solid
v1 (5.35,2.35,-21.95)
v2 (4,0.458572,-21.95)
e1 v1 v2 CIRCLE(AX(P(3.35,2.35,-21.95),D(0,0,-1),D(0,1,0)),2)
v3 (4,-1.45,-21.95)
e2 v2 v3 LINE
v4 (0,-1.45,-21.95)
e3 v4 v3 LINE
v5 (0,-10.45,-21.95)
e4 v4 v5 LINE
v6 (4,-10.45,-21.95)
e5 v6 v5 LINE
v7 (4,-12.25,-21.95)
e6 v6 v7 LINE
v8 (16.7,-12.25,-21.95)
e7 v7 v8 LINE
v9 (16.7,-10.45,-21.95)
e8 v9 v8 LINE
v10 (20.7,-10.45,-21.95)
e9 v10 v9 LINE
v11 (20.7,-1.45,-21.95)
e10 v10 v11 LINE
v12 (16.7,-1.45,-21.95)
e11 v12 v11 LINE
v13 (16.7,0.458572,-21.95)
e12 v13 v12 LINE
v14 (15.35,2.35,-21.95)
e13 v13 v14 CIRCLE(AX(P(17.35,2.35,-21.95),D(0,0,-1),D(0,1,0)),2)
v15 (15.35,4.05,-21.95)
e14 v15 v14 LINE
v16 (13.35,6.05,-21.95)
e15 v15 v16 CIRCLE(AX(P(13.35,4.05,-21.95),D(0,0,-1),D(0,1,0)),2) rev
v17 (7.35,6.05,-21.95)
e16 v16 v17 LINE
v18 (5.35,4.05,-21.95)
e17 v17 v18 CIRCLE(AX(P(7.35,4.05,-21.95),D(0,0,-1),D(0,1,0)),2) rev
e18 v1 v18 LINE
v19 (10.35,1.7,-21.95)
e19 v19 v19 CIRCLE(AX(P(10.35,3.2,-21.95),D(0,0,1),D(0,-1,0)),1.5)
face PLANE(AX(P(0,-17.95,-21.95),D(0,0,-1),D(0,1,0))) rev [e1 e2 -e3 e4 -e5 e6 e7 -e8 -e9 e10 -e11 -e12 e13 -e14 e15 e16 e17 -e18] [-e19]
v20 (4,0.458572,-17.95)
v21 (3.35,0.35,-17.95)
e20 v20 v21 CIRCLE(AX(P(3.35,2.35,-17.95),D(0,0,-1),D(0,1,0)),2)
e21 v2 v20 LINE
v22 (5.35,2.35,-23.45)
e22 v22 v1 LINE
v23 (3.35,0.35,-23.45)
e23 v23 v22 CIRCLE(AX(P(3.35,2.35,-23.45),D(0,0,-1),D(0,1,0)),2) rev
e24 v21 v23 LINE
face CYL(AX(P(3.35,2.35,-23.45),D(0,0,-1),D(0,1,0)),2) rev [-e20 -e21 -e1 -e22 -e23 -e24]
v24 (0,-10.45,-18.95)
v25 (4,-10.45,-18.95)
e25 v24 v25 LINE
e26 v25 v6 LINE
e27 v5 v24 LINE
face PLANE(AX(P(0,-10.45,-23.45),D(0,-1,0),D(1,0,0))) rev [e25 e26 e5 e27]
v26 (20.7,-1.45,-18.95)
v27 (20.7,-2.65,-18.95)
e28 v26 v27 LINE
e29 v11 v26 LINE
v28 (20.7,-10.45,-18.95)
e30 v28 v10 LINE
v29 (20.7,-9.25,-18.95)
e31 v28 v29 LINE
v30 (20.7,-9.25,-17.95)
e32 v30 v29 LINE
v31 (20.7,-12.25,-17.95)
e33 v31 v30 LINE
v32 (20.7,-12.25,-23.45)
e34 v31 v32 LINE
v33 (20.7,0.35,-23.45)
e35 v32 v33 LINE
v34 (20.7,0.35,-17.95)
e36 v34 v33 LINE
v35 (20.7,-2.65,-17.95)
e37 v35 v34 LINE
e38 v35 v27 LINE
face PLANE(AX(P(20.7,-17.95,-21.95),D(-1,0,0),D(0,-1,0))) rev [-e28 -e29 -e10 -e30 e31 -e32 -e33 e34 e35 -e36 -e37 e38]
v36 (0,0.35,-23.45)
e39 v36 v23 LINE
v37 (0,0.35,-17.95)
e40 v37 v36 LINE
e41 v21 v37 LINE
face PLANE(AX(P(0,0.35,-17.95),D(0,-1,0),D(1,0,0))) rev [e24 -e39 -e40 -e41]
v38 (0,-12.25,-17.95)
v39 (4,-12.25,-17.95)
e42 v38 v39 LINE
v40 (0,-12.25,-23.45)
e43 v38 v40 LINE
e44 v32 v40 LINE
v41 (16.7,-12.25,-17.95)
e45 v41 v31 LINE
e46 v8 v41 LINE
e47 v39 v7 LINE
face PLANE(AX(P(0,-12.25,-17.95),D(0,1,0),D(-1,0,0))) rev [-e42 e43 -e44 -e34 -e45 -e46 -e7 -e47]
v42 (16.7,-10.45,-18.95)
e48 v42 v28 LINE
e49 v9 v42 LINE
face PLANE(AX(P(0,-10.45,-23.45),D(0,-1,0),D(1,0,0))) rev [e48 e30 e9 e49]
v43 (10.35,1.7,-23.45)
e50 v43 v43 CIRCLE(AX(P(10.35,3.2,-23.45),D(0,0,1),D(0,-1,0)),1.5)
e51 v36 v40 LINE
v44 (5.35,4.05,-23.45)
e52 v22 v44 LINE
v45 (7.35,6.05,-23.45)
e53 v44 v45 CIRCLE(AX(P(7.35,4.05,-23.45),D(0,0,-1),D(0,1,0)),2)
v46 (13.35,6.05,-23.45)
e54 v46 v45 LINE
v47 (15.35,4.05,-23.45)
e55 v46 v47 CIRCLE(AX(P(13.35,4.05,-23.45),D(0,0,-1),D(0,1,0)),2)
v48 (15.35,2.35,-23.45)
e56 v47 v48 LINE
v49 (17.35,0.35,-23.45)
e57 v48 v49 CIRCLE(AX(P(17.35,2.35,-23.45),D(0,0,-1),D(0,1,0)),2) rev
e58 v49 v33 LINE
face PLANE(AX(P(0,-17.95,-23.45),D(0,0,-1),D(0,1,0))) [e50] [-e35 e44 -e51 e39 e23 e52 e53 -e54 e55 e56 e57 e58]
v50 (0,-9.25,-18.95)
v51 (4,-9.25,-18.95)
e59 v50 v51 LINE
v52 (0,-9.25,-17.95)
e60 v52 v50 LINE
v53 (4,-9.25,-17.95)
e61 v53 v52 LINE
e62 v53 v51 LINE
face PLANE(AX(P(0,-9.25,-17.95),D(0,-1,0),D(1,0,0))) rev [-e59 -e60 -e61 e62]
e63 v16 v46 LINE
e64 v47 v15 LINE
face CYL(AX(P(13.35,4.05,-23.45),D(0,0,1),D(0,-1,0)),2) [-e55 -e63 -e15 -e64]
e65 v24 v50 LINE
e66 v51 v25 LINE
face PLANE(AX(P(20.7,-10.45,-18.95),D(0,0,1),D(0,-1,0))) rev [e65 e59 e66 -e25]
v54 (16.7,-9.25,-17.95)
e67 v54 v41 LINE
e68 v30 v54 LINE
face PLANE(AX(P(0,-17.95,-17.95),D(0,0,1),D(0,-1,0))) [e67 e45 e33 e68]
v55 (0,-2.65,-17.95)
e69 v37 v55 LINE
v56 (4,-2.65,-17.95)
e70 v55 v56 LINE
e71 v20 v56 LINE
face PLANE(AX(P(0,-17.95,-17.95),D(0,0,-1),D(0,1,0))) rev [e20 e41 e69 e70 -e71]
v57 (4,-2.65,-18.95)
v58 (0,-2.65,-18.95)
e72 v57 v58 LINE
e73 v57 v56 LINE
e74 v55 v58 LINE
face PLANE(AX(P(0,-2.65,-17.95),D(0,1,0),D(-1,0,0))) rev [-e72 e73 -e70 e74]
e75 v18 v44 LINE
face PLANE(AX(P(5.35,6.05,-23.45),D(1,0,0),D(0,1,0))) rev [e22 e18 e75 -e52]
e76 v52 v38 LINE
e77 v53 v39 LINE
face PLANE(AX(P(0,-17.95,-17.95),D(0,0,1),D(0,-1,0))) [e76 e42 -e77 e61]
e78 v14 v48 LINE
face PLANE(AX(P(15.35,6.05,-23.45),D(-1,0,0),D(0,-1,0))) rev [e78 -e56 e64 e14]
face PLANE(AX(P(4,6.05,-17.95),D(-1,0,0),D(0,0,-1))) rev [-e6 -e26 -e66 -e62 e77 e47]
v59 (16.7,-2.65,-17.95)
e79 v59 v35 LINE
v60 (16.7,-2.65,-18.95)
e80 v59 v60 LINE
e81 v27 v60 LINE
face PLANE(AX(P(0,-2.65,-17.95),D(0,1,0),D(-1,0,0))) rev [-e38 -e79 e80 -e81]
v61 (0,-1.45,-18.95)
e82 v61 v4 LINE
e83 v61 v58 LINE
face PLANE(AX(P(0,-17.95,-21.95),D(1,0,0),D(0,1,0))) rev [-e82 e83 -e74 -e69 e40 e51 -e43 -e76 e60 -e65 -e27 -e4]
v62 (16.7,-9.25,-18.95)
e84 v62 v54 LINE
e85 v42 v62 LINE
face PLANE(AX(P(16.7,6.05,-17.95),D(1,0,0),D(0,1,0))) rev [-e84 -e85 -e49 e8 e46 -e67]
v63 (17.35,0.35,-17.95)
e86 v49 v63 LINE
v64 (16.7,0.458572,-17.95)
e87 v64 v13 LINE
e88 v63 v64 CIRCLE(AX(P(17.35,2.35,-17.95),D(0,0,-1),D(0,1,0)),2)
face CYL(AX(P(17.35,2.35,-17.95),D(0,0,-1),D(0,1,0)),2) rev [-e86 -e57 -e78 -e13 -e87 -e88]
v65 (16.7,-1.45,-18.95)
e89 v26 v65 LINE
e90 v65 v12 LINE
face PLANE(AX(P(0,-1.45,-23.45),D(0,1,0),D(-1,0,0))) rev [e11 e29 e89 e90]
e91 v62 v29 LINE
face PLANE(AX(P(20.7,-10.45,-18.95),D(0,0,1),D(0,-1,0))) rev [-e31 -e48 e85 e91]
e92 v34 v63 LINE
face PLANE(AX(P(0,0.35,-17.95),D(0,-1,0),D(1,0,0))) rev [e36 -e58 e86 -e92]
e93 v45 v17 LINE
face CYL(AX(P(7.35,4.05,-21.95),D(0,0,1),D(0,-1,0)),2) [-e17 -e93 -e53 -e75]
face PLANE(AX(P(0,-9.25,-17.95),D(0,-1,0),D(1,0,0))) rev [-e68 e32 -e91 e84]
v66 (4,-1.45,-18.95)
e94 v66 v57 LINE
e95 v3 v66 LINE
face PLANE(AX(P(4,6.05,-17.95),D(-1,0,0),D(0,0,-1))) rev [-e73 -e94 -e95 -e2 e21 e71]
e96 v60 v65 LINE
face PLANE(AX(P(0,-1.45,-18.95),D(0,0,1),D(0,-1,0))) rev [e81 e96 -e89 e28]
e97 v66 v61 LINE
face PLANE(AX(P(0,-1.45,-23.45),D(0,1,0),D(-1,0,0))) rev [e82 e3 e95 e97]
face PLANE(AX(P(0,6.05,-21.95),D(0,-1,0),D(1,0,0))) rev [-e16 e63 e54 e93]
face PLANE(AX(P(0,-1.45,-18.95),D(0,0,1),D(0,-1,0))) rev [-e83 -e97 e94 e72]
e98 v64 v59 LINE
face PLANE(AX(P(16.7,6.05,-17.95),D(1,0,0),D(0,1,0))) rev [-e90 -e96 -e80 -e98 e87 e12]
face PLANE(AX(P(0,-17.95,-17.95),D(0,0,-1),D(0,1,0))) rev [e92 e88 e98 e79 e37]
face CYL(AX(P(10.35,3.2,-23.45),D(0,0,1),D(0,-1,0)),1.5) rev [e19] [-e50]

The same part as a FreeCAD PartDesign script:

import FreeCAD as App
import Part
import Sketcher

V = App.Vector


def edges_at(feature, points):
    """Names of the edges that pass closest to the given points."""
    edges = feature.Shape.Edges
    near = lambda p: min(range(len(edges)), key=lambda i: edges[i].distToShape(Part.Vertex(*p))[0])
    return sorted({f"Edge{near(p) + 1}" for p in points})

doc = App.newDocument("Part")
body = doc.addObject("PartDesign::Body", "Body")

sketch1 = doc.addObject("Sketcher::SketchObject", "Sketch")
body.addObject(sketch1)
sketch1.AttachmentSupport = (doc.XZ_Plane, [""])
sketch1.MapMode = "FlatFace"
sketch1.addGeometry([
    Part.LineSegment(V(0, -24, 0), V(0, 0, 0)),
    Part.LineSegment(V(0, 0, 0), V(21, 0, 0)),
    Part.LineSegment(V(21, 0, 0), V(21, -24, 0)),
    Part.LineSegment(V(21, -24, 0), V(0, -24, 0)),
], False)
sketch1.addConstraint([
    Sketcher.Constraint("Coincident", 0, 2, 1, 1),
    Sketcher.Constraint("Coincident", 1, 2, 2, 1),
    Sketcher.Constraint("Coincident", 2, 2, 3, 1),
    Sketcher.Constraint("Coincident", 3, 2, 0, 1),
    Sketcher.Constraint("Vertical", 0),
    Sketcher.Constraint("Horizontal", 1),
    Sketcher.Constraint("Vertical", 2),
    Sketcher.Constraint("Horizontal", 3),
    Sketcher.Constraint("Coincident", 0, 2, -1, 1),
    Sketcher.Constraint("DistanceY", 0, 1, 0, 2, 24.0),
    Sketcher.Constraint("DistanceX", 1, 1, 1, 2, 20.7),
])
pad1 = doc.addObject("PartDesign::Pad", "Pad")
body.addObject(pad1)
pad1.Profile = sketch1
pad1.Length = 1.5
pad1.Reversed = True

sketch2 = doc.addObject("Sketcher::SketchObject", "Sketch001")
body.addObject(sketch2)
sketch2.AttachmentSupport = (doc.XZ_Plane, [""])
sketch2.MapMode = "FlatFace"
sketch2.AttachmentOffset = App.Placement(V(0, 0, -1.5), App.Rotation())
sketch2.addGeometry([
    Part.LineSegment(V(0, -18.3, 0), V(0, -15.3, 0)),
    Part.LineSegment(V(0, -15.3, 0), V(20.7, -15.3, 0)),
    Part.LineSegment(V(20.7, -15.3, 0), V(20.7, -18.3, 0)),
    Part.LineSegment(V(20.7, -18.3, 0), V(0, -18.3, 0)),
    Part.LineSegment(V(0, -8.7, 0), V(0, -5.7, 0)),
    Part.LineSegment(V(0, -5.7, 0), V(20.7, -5.7, 0)),
    Part.LineSegment(V(20.7, -5.7, 0), V(20.7, -8.7, 0)),
    Part.LineSegment(V(20.7, -8.7, 0), V(0, -8.7, 0)),
], False)
sketch2.addConstraint([
    Sketcher.Constraint("Coincident", 0, 2, 1, 1),
    Sketcher.Constraint("Coincident", 1, 2, 2, 1),
    Sketcher.Constraint("Coincident", 2, 2, 3, 1),
    Sketcher.Constraint("Coincident", 3, 2, 0, 1),
    Sketcher.Constraint("Coincident", 4, 2, 5, 1),
    Sketcher.Constraint("Coincident", 5, 2, 6, 1),
    Sketcher.Constraint("Coincident", 6, 2, 7, 1),
    Sketcher.Constraint("Coincident", 7, 2, 4, 1),
    Sketcher.Constraint("Vertical", 0),
    Sketcher.Constraint("Horizontal", 1),
    Sketcher.Constraint("Vertical", 2),
    Sketcher.Constraint("Horizontal", 3),
    Sketcher.Constraint("Vertical", 4),
    Sketcher.Constraint("Horizontal", 5),
    Sketcher.Constraint("Vertical", 6),
    Sketcher.Constraint("Horizontal", 7),
    Sketcher.Constraint("PointOnObject", 0, 2, -2),
    Sketcher.Constraint("PointOnObject", 4, 2, -2),
    Sketcher.Constraint("Vertical", 2, 2, 5, 2),
    Sketcher.Constraint("Equal", 2, 4),
    Sketcher.Constraint("DistanceY", 0, 1, 0, 2, 3.0),
    Sketcher.Constraint("DistanceX", 1, 1, 1, 2, 20.7),
    Sketcher.Constraint("DistanceY", 0, 2, -1, 1, 15.3),
    Sketcher.Constraint("DistanceY", 4, 2, -1, 1, 5.7),
])
pad2 = doc.addObject("PartDesign::Pad", "Pad001")
body.addObject(pad2)
pad2.Profile = sketch2
pad2.Length = 4
pad2.Reversed = True

sketch3 = doc.addObject("Sketcher::SketchObject", "Sketch002")
body.addObject(sketch3)
sketch3.AttachmentSupport = (doc.XY_Plane, [""])
sketch3.MapMode = "FlatFace"
sketch3.AttachmentOffset = App.Placement(V(0, 0, -15.3), App.Rotation())
sketch3.addGeometry([
    Part.LineSegment(V(0, 4.5, 0), V(0, 1.5, 0)),
    Part.LineSegment(V(0, 1.5, 0), V(20.7, 1.5, 0)),
    Part.LineSegment(V(20.7, 1.5, 0), V(20.7, 4.5, 0)),
    Part.LineSegment(V(20.7, 4.5, 0), V(0, 4.5, 0)),
], False)
sketch3.addConstraint([
    Sketcher.Constraint("Coincident", 0, 2, 1, 1),
    Sketcher.Constraint("Coincident", 1, 2, 2, 1),
    Sketcher.Constraint("Coincident", 2, 2, 3, 1),
    Sketcher.Constraint("Coincident", 3, 2, 0, 1),
    Sketcher.Constraint("Vertical", 0),
    Sketcher.Constraint("Horizontal", 1),
    Sketcher.Constraint("Vertical", 2),
    Sketcher.Constraint("Horizontal", 3),
    Sketcher.Constraint("PointOnObject", 0, 2, -2),
    Sketcher.Constraint("DistanceY", 0, 2, 0, 1, 3.0),
    Sketcher.Constraint("DistanceX", 1, 1, 1, 2, 20.7),
    Sketcher.Constraint("DistanceY", -1, 1, 0, 2, 1.5),
])
pocket1 = doc.addObject("PartDesign::Pocket", "Pocket")
body.addObject(pocket1)
pocket1.Profile = sketch3
pocket1.Length = 1.2

sketch4 = doc.addObject("Sketcher::SketchObject", "Sketch003")
body.addObject(sketch4)
sketch4.AttachmentSupport = (doc.XY_Plane, [""])
sketch4.MapMode = "FlatFace"
sketch4.AttachmentOffset = App.Placement(V(0, 0, -8.7), App.Rotation())
sketch4.addGeometry([
    Part.LineSegment(V(20.7, 4.5, 0), V(20.7, 1.5, 0)),
    Part.LineSegment(V(20.7, 1.5, 0), V(0, 1.5, 0)),
    Part.LineSegment(V(0, 1.5, 0), V(0, 4.5, 0)),
    Part.LineSegment(V(0, 4.5, 0), V(20.7, 4.5, 0)),
], False)
sketch4.addConstraint([
    Sketcher.Constraint("Coincident", 0, 2, 1, 1),
    Sketcher.Constraint("Coincident", 1, 2, 2, 1),
    Sketcher.Constraint("Coincident", 2, 2, 3, 1),
    Sketcher.Constraint("Coincident", 3, 2, 0, 1),
    Sketcher.Constraint("Vertical", 0),
    Sketcher.Constraint("Horizontal", 1),
    Sketcher.Constraint("Vertical", 2),
    Sketcher.Constraint("Horizontal", 3),
    Sketcher.Constraint("PointOnObject", 1, 2, -2),
    Sketcher.Constraint("DistanceY", 0, 2, 0, 1, 3.0),
    Sketcher.Constraint("DistanceX", 1, 2, 1, 1, 20.7),
    Sketcher.Constraint("DistanceY", -1, 1, 0, 2, 1.5),
])
pocket2 = doc.addObject("PartDesign::Pocket", "Pocket001")
body.addObject(pocket2)
pocket2.Profile = sketch4
pocket2.Length = 1.2
pocket2.Reversed = True

sketch5 = doc.addObject("Sketcher::SketchObject", "Sketch004")
body.addObject(sketch5)
sketch5.AttachmentSupport = (doc.XZ_Plane, [""])
sketch5.MapMode = "FlatFace"
sketch5.AttachmentOffset = App.Placement(V(0, 0, -1.5), App.Rotation())
sketch5.addGeometry([
    Part.Circle(V(10.3, -21.1, 0), V(0, 0, 1), 1.5),
    Part.Circle(V(10.3, -2.9, 0), V(0, 0, 1), 1.5),
], False)
sketch5.addConstraint([
    Sketcher.Constraint("Equal", 0, 1),
    Sketcher.Constraint("Vertical", 0, 3, 1, 3),
    Sketcher.Constraint("Diameter", 0, 3.0),
    Sketcher.Constraint("DistanceY", 0, 3, 1, 3, 18.3),
    Sketcher.Constraint("DistanceX", -1, 1, 0, 3, 10.35),
    Sketcher.Constraint("DistanceY", 0, 3, -1, 1, 21.15),
])
pocket3 = doc.addObject("PartDesign::Pocket", "Pocket002")
body.addObject(pocket3)
pocket3.Profile = sketch5
pocket3.Type = "ThroughAll"
pocket3.Reversed = True

sketch6 = doc.addObject("Sketcher::SketchObject", "Sketch005")
body.addObject(sketch6)
sketch6.AttachmentSupport = (doc.XZ_Plane, [""])
sketch6.MapMode = "FlatFace"
sketch6.addGeometry([
    Part.LineSegment(V(0, -6, 0), V(0, 0, 0)),
    Part.LineSegment(V(0, 0, 0), V(21, 0, 0)),
    Part.LineSegment(V(21, 0, 0), V(21, -6, 0)),
    Part.LineSegment(V(21, -6, 0), V(0, -6, 0)),
], False)
sketch6.addConstraint([
    Sketcher.Constraint("Coincident", 0, 2, 1, 1),
    Sketcher.Constraint("Coincident", 1, 2, 2, 1),
    Sketcher.Constraint("Coincident", 2, 2, 3, 1),
    Sketcher.Constraint("Coincident", 3, 2, 0, 1),
    Sketcher.Constraint("Vertical", 0),
    Sketcher.Constraint("Horizontal", 1),
    Sketcher.Constraint("Vertical", 2),
    Sketcher.Constraint("Horizontal", 3),
    Sketcher.Constraint("Coincident", 0, 2, -1, 1),
    Sketcher.Constraint("DistanceX", 1, 1, 1, 2, 20.7),
    Sketcher.Constraint("DistanceY", 0, 1, 0, 2, 5.7),
])
pocket4 = doc.addObject("PartDesign::Pocket", "Pocket003")
body.addObject(pocket4)
pocket4.Profile = sketch6
pocket4.Type = "ThroughAll"

sketch7 = doc.addObject("Sketcher::SketchObject", "Sketch006")
body.addObject(sketch7)
sketch7.AttachmentSupport = (doc.XY_Plane, [""])
sketch7.MapMode = "FlatFace"
sketch7.AttachmentOffset = App.Placement(V(0, 0, -5.7), App.Rotation())
sketch7.addGeometry([
    Part.LineSegment(V(4, 5.5, 0), V(4, 1.5, 0)),
    Part.LineSegment(V(4, 1.5, 0), V(16.7, 1.5, 0)),
    Part.LineSegment(V(16.7, 1.5, 0), V(16.7, 5.5, 0)),
    Part.LineSegment(V(16.7, 5.5, 0), V(4, 5.5, 0)),
], False)
sketch7.addConstraint([
    Sketcher.Constraint("Coincident", 0, 2, 1, 1),
    Sketcher.Constraint("Coincident", 1, 2, 2, 1),
    Sketcher.Constraint("Coincident", 2, 2, 3, 1),
    Sketcher.Constraint("Coincident", 3, 2, 0, 1),
    Sketcher.Constraint("Vertical", 0),
    Sketcher.Constraint("Horizontal", 1),
    Sketcher.Constraint("Vertical", 2),
    Sketcher.Constraint("Horizontal", 3),
    Sketcher.Constraint("DistanceY", 0, 2, 0, 1, 4.0),
    Sketcher.Constraint("DistanceX", 1, 1, 1, 2, 12.7),
    Sketcher.Constraint("DistanceX", -1, 1, 0, 2, 4.0),
    Sketcher.Constraint("DistanceY", -1, 1, 0, 2, 1.5),
])
pocket5 = doc.addObject("PartDesign::Pocket", "Pocket004")
body.addObject(pocket5)
pocket5.Profile = sketch7
pocket5.Type = "ThroughAll"

sketch8 = doc.addObject("Sketcher::SketchObject", "Sketch007")
body.addObject(sketch8)
sketch8.AttachmentSupport = (doc.XZ_Plane, [""])
sketch8.MapMode = "FlatFace"
sketch8.AttachmentOffset = App.Placement(V(0, 0, -1.5), App.Rotation())
sketch8.addGeometry([
    Part.LineSegment(V(0, -24, 0), V(0, -18, 0)),
    Part.LineSegment(V(0, -18, 0), V(5, -18, 0)),
    Part.LineSegment(V(5, -18, 0), V(5, -24, 0)),
    Part.LineSegment(V(5, -24, 0), V(0, -24, 0)),
    Part.LineSegment(V(15, -24, 0), V(15, -18, 0)),
    Part.LineSegment(V(15, -18, 0), V(21, -18, 0)),
    Part.LineSegment(V(21, -18, 0), V(21, -24, 0)),
    Part.LineSegment(V(21, -24, 0), V(15, -24, 0)),
], False)
sketch8.addConstraint([
    Sketcher.Constraint("Coincident", 0, 2, 1, 1),
    Sketcher.Constraint("Coincident", 1, 2, 2, 1),
    Sketcher.Constraint("Coincident", 2, 2, 3, 1),
    Sketcher.Constraint("Coincident", 3, 2, 0, 1),
    Sketcher.Constraint("Coincident", 4, 2, 5, 1),
    Sketcher.Constraint("Coincident", 5, 2, 6, 1),
    Sketcher.Constraint("Coincident", 6, 2, 7, 1),
    Sketcher.Constraint("Coincident", 7, 2, 4, 1),
    Sketcher.Constraint("Vertical", 0),
    Sketcher.Constraint("Horizontal", 1),
    Sketcher.Constraint("Vertical", 2),
    Sketcher.Constraint("Horizontal", 3),
    Sketcher.Constraint("Vertical", 4),
    Sketcher.Constraint("Horizontal", 5),
    Sketcher.Constraint("Vertical", 6),
    Sketcher.Constraint("Horizontal", 7),
    Sketcher.Constraint("PointOnObject", 0, 2, -2),
    Sketcher.Constraint("Horizontal", 1, 2, 4, 2),
    Sketcher.Constraint("Horizontal", 3, 2, 6, 2),
    Sketcher.Constraint("Equal", 3, 5),
    Sketcher.Constraint("DistanceY", 0, 1, 0, 2, 5.7),
    Sketcher.Constraint("DistanceY", 2, 2, -1, 1, 24.0),
    Sketcher.Constraint("DistanceX", 1, 2, 4, 2, 10.0),
    Sketcher.Constraint("DistanceX", 1, 1, 1, 2, 5.35),
])
pocket6 = doc.addObject("PartDesign::Pocket", "Pocket005")
body.addObject(pocket6)
pocket6.Profile = sketch8
pocket6.Type = "ThroughAll"
pocket6.Reversed = True
doc.recompute()

fillet = doc.addObject("PartDesign::Fillet", "Fillet")
body.addObject(fillet)
fillet.Base = (pocket6, edges_at(pocket6, [
    (5.35, 0.75, -18.3),
    (5.35, 0.75, -24),
    (15.35, 0.75, -24),
    (15.35, 0.75, -18.3),
]))
fillet.Radius = 2
body2 = doc.addObject("PartDesign::Body", "Body001")
doc.recompute()

body.Placement = App.Placement(V(0, -17.95, -23.45), App.Rotation(V(1, 0, 0), 90))
boolean = doc.addObject("PartDesign::Boolean", "Boolean")
body2.addObject(boolean)
boolean.Type = "Fuse"
boolean.addObjects([body])

doc.recompute()
